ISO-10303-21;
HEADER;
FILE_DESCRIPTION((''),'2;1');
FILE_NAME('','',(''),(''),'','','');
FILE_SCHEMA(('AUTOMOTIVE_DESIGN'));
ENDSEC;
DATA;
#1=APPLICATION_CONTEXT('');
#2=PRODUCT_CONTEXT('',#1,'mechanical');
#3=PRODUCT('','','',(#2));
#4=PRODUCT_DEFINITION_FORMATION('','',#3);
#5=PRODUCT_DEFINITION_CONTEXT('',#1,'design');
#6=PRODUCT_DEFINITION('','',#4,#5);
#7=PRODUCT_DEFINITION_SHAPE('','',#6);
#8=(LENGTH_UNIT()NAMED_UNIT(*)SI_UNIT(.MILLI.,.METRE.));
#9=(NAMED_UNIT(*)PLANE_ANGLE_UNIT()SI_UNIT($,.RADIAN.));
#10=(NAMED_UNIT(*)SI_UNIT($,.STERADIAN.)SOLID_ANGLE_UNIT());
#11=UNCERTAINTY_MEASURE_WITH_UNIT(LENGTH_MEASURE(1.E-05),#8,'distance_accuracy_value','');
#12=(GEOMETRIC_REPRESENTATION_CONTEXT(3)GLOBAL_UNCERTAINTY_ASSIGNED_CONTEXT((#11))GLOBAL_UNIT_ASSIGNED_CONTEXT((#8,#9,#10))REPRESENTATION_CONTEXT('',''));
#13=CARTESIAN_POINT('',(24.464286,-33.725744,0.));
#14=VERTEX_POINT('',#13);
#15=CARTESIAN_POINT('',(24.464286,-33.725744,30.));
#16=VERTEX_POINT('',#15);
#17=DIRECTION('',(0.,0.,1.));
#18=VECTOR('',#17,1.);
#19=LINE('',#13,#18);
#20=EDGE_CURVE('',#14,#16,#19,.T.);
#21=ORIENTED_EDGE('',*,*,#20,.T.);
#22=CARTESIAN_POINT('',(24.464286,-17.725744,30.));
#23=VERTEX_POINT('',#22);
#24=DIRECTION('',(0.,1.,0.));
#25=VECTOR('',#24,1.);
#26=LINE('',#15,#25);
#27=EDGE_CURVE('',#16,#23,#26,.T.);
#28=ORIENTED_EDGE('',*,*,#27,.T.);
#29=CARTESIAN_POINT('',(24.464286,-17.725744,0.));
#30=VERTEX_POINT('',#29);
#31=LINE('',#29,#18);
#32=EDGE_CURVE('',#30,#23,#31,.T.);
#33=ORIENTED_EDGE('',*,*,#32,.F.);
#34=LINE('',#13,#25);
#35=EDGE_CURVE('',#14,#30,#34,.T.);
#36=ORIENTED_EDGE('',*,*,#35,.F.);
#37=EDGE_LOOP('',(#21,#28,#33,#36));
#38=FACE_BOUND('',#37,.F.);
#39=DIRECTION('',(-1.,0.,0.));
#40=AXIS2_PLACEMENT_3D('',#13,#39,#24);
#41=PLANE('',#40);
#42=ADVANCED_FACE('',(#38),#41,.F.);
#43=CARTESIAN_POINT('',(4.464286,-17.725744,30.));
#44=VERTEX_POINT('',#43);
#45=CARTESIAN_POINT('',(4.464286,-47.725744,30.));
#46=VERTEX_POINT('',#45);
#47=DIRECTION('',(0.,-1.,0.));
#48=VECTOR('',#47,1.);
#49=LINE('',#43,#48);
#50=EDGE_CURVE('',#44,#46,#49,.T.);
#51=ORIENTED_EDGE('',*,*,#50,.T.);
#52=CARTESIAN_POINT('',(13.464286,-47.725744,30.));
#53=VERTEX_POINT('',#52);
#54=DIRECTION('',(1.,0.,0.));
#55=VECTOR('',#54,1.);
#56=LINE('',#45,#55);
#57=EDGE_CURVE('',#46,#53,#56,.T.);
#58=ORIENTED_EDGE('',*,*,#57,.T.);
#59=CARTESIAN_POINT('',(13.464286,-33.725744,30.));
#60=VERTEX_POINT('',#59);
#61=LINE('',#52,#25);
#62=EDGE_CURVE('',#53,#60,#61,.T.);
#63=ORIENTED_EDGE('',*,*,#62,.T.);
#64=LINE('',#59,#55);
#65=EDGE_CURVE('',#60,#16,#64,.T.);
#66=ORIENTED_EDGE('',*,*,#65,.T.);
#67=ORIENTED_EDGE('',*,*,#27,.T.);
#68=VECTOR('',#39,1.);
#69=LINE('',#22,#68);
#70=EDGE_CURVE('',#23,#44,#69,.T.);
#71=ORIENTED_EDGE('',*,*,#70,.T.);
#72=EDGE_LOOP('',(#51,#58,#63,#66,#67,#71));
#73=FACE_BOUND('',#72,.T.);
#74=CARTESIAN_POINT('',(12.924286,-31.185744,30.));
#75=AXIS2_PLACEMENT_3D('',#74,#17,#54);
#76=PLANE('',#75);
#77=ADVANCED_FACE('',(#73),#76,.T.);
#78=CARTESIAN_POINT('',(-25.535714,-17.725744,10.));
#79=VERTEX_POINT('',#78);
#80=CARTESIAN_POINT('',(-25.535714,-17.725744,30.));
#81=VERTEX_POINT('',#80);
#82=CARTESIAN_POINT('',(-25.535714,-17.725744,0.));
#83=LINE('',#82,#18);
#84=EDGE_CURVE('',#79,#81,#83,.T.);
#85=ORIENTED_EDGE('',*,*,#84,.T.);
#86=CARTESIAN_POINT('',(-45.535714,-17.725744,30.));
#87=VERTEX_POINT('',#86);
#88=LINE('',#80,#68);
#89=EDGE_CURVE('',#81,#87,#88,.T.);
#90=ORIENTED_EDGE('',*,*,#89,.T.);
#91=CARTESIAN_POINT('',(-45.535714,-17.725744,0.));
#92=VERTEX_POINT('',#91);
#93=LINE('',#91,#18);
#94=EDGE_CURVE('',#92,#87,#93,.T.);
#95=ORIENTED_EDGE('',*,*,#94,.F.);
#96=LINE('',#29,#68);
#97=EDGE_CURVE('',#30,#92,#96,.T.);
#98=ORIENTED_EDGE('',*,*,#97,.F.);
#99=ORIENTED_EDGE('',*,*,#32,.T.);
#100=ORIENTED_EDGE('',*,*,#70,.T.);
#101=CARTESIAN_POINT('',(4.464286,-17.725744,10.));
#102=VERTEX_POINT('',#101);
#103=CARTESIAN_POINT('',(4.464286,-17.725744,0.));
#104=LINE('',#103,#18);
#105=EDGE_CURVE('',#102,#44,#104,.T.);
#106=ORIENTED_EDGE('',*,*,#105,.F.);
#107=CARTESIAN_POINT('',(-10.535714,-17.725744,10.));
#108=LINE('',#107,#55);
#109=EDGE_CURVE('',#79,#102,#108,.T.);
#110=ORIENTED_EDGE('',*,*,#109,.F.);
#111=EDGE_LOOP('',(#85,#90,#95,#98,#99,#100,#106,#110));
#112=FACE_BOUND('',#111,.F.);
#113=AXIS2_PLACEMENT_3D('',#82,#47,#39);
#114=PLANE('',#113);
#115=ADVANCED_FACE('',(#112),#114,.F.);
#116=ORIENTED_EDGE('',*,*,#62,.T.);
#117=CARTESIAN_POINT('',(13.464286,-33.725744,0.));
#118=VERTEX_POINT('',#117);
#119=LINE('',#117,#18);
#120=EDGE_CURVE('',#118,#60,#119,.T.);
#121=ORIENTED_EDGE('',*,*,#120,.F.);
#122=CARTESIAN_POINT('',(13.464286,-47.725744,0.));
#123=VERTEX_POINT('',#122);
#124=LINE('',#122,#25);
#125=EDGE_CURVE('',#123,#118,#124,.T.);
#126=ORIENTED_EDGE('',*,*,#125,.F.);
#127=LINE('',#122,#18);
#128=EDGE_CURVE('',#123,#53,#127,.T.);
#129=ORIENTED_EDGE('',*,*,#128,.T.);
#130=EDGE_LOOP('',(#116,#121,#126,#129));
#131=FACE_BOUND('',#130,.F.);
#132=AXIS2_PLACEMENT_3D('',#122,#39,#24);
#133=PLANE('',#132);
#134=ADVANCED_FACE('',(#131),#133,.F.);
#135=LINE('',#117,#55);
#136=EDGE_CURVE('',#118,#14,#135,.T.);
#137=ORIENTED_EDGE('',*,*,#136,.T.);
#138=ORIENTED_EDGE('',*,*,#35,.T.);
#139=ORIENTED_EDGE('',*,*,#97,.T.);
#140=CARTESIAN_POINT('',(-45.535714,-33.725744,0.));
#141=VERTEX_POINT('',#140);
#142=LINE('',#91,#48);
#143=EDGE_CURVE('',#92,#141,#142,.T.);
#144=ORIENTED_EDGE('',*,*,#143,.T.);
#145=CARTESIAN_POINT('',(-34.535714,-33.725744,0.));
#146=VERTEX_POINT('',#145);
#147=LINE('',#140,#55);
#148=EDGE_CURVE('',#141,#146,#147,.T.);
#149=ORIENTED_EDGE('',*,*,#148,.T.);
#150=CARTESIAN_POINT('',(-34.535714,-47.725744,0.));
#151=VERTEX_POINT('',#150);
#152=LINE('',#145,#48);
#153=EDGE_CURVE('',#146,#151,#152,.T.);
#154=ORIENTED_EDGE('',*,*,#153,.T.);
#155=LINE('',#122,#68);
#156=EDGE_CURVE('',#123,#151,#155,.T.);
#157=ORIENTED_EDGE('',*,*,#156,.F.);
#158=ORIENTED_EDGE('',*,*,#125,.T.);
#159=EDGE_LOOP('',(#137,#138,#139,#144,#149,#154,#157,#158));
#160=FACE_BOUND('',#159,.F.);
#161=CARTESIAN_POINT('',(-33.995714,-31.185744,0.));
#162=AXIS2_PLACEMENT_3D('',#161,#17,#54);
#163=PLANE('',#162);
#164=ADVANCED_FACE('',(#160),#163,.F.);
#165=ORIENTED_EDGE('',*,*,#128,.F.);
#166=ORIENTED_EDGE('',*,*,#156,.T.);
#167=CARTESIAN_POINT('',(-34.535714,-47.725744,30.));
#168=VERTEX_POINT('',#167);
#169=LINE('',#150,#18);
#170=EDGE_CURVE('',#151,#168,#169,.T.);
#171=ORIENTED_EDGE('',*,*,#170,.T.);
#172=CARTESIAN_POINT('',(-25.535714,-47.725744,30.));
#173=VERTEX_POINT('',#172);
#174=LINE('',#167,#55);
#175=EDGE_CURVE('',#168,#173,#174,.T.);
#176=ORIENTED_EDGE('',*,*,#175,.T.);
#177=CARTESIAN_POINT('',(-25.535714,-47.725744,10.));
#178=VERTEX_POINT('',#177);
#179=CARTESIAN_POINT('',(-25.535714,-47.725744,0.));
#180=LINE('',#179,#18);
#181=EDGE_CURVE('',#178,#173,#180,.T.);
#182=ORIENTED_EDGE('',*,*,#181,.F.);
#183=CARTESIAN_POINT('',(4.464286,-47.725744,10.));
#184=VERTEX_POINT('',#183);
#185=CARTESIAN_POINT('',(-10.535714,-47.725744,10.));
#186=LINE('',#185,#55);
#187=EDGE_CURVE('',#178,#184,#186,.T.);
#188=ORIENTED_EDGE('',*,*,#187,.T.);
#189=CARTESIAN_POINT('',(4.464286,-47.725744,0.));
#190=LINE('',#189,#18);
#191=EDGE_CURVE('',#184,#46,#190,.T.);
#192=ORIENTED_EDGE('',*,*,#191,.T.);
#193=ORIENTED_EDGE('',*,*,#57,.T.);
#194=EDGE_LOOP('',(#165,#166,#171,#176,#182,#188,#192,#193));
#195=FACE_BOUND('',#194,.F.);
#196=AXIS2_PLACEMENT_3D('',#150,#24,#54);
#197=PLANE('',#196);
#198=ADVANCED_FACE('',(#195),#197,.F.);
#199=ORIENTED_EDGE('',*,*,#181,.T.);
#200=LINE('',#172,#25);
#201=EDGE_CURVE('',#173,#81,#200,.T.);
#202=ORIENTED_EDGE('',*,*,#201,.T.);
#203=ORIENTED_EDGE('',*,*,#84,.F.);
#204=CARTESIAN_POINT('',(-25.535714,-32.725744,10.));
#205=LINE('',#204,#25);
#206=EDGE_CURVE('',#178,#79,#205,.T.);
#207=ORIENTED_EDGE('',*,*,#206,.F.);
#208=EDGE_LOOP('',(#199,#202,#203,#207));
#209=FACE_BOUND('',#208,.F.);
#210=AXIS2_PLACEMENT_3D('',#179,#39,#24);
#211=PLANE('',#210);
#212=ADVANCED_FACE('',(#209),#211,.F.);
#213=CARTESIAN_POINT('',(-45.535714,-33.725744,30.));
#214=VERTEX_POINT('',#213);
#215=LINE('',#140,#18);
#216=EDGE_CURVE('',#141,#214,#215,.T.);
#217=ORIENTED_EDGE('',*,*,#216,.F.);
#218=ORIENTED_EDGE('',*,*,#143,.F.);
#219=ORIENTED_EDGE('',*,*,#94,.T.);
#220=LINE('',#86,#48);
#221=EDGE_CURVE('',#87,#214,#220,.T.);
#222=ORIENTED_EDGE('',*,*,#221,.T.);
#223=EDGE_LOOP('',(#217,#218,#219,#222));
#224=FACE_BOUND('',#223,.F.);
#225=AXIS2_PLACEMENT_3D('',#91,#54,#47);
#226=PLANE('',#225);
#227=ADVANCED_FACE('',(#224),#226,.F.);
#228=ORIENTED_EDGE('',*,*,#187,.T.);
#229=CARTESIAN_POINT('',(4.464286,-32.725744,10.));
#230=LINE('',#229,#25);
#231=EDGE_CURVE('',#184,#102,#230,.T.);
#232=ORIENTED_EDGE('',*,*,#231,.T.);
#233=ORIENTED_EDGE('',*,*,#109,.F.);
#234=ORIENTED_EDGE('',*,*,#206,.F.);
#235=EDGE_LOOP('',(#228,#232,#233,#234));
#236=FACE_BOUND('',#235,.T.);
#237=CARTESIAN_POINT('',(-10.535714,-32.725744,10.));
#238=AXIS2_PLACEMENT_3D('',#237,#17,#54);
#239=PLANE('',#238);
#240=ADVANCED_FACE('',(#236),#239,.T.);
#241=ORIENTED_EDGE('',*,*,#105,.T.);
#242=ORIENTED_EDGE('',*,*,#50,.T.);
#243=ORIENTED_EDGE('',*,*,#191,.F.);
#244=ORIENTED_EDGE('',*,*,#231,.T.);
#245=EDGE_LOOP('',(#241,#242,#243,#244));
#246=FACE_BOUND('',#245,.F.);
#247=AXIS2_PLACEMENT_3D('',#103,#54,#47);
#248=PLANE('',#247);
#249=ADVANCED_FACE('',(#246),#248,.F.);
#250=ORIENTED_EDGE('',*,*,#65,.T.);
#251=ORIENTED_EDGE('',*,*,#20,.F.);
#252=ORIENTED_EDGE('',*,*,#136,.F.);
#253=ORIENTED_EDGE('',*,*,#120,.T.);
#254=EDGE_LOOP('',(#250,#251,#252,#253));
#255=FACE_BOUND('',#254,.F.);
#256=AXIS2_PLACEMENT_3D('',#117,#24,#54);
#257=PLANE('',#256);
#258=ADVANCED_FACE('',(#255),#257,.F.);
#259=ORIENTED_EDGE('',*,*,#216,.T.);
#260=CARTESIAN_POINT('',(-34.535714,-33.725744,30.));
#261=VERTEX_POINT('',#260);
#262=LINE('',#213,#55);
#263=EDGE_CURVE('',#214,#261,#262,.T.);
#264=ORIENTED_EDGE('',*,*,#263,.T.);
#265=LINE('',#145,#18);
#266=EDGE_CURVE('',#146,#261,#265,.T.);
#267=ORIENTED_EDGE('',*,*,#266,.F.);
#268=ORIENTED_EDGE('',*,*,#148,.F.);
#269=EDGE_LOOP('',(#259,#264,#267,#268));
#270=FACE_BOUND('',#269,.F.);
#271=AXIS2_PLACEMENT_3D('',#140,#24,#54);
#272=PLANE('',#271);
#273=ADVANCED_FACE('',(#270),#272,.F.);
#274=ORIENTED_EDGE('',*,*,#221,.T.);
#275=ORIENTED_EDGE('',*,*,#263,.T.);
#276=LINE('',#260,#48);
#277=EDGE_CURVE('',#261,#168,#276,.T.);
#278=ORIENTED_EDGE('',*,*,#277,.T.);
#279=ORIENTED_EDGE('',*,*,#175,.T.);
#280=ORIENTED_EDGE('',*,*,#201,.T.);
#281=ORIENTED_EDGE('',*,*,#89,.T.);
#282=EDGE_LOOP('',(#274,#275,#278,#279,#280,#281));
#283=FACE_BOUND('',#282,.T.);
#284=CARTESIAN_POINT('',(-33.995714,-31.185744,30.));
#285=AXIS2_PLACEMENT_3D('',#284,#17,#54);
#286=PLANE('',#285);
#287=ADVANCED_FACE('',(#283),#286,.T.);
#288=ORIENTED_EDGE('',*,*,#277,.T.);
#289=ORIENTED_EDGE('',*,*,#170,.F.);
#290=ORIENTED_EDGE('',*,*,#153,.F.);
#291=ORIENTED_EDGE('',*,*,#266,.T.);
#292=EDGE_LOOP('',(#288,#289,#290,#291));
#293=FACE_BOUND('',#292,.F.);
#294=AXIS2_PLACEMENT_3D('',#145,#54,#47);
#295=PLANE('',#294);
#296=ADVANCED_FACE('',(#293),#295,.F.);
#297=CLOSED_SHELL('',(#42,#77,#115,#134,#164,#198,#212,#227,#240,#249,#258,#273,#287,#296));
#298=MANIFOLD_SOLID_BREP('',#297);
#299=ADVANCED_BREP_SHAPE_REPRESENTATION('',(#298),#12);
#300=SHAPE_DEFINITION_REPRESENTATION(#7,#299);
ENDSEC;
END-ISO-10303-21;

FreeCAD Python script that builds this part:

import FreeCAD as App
import Part
import Sketcher
from FreeCAD import Vector
Q = App.Units.Quantity


def add_polygon(sketch, points):
    """Adds a closed chain of lines whose ends are joined by coincident constraints."""
    first, n = sketch.GeometryCount, len(points)
    for a, b in zip(points, points[1:] + points[:1]):
        sketch.addGeometry(Part.LineSegment(App.Vector(*a, 0), App.Vector(*b, 0)), False)
    for i in range(n):
        sketch.addConstraint(Sketcher.Constraint("Coincident", first + i, 2, first + (i + 1) % n, 1))

doc = App.newDocument("Part")
params = doc.addObject("Spreadsheet::Sheet", "Params")
for row, (alias, value) in enumerate([
    ("sketch1_width", "30 mm"),
    ("pad1_length", "10 mm"),
    ("sketch2_width", "20 mm"),
    ("sketch2_width2", "11 mm"),
    ("sketch2_height", "16 mm"),
    ("sketch2_height2", "14 mm"),
    ("pad2_length", "30 mm"),
], start=1):
    params.set(f"A{row}", alias)
    params.set(f"B{row}", "=" + value)
    params.setAlias(f"B{row}", alias)

body = doc.addObject("PartDesign::Body", "Body")

# Sketch on XY plane
sketch1 = doc.addObject("Sketcher::SketchObject", "Sketch")
body.addObject(sketch1)
sketch1.AttachmentSupport = (doc.XY_Plane, [""])
sketch1.MapMode = "FlatFace"
add_polygon(sketch1, [(-25.535714, -17.725744), (-25.535714, -47.725744), (4.464286, -47.725744), (4.464286, -17.725744)])  # lines 0-3
sketch1.addConstraint(Sketcher.Constraint("Vertical", 0))
sketch1.addConstraint(Sketcher.Constraint("Horizontal", 1))
sketch1.addConstraint(Sketcher.Constraint("Vertical", 2))
sketch1.addConstraint(Sketcher.Constraint("Horizontal", 3))
sketch1.addConstraint(Sketcher.Constraint("Equal", 3, 0))
sketch1.addConstraint(Sketcher.Constraint("DistanceX", 1, 1, 1, 2, Q("30 mm")))
sketch1.addConstraint(Sketcher.Constraint("DistanceX", 0, 2, -1, 1, Q("25.535714 mm")))
sketch1.addConstraint(Sketcher.Constraint("DistanceY", 0, 2, -1, 1, Q("47.725744 mm")))
sketch1.setExpression("Constraints[9]", "Params.sketch1_width")
pad1 = doc.addObject("PartDesign::Pad", "Pad")
body.addObject(pad1)
pad1.Profile = sketch1
pad1.setExpression("Length", "Params.pad1_length")

# Sketch on XY plane
sketch2 = doc.addObject("Sketcher::SketchObject", "Sketch001")
body.addObject(sketch2)
sketch2.AttachmentSupport = (doc.XY_Plane, [""])
sketch2.MapMode = "FlatFace"
add_polygon(sketch2, [(-25.535714, -17.725744), (-45.535714, -17.725744), (-45.535714, -33.725744), (-34.535714, -33.725744), (-34.535714, -47.725744), (-25.535714, -47.725744)])  # lines 0-5
add_polygon(sketch2, [(24.464286, -17.725744), (4.464286, -17.725744), (4.464286, -47.725744), (13.464286, -47.725744), (13.464286, -33.725744), (24.464286, -33.725744)])  # lines 6-11
sketch2.addConstraint(Sketcher.Constraint("Horizontal", 0))
sketch2.addConstraint(Sketcher.Constraint("Vertical", 1))
sketch2.addConstraint(Sketcher.Constraint("Horizontal", 2))
sketch2.addConstraint(Sketcher.Constraint("Vertical", 3))
sketch2.addConstraint(Sketcher.Constraint("Horizontal", 4))
sketch2.addConstraint(Sketcher.Constraint("Vertical", 5))
sketch2.addConstraint(Sketcher.Constraint("Horizontal", 6))
sketch2.addConstraint(Sketcher.Constraint("Vertical", 7))
sketch2.addConstraint(Sketcher.Constraint("Horizontal", 8))
sketch2.addConstraint(Sketcher.Constraint("Vertical", 9))
sketch2.addConstraint(Sketcher.Constraint("Horizontal", 10))
sketch2.addConstraint(Sketcher.Constraint("Vertical", 11))
sketch2.addConstraint(Sketcher.Constraint("Horizontal", 5, 2, 6, 2))
sketch2.addConstraint(Sketcher.Constraint("Horizontal", 4, 2, 7, 2))
sketch2.addConstraint(Sketcher.Constraint("Horizontal", 2, 2, 9, 2))
sketch2.addConstraint(Sketcher.Constraint("Equal", 0, 6))
sketch2.addConstraint(Sketcher.Constraint("Equal", 4, 8))
sketch2.addConstraint(Sketcher.Constraint("DistanceX", 0, 2, 0, 1, Q("20 mm")))
sketch2.addConstraint(Sketcher.Constraint("DistanceX", 2, 1, 2, 2, Q("11 mm")))
sketch2.addConstraint(Sketcher.Constraint("DistanceY", 1, 2, 1, 1, Q("16 mm")))
sketch2.addConstraint(Sketcher.Constraint("DistanceY", 3, 2, 3, 1, Q("14 mm")))
sketch2.addConstraint(Sketcher.Constraint("DistanceX", 5, 2, 6, 2, Q("30 mm")))
sketch2.addConstraint(Sketcher.Constraint("DistanceX", 0, 2, -1, 1, Q("45.535714 mm")))
sketch2.addConstraint(Sketcher.Constraint("DistanceY", 0, 2, -1, 1, Q("17.725744 mm")))
sketch2.setExpression("Constraints[29]", "Params.sketch2_width")
sketch2.setExpression("Constraints[30]", "Params.sketch2_width2")
sketch2.setExpression("Constraints[31]", "Params.sketch2_height")
sketch2.setExpression("Constraints[32]", "Params.sketch2_height2")
pad2 = doc.addObject("PartDesign::Pad", "Pad001")
body.addObject(pad2)
pad2.Profile = sketch2
pad2.setExpression("Length", "Params.pad2_length")

doc.recompute()
